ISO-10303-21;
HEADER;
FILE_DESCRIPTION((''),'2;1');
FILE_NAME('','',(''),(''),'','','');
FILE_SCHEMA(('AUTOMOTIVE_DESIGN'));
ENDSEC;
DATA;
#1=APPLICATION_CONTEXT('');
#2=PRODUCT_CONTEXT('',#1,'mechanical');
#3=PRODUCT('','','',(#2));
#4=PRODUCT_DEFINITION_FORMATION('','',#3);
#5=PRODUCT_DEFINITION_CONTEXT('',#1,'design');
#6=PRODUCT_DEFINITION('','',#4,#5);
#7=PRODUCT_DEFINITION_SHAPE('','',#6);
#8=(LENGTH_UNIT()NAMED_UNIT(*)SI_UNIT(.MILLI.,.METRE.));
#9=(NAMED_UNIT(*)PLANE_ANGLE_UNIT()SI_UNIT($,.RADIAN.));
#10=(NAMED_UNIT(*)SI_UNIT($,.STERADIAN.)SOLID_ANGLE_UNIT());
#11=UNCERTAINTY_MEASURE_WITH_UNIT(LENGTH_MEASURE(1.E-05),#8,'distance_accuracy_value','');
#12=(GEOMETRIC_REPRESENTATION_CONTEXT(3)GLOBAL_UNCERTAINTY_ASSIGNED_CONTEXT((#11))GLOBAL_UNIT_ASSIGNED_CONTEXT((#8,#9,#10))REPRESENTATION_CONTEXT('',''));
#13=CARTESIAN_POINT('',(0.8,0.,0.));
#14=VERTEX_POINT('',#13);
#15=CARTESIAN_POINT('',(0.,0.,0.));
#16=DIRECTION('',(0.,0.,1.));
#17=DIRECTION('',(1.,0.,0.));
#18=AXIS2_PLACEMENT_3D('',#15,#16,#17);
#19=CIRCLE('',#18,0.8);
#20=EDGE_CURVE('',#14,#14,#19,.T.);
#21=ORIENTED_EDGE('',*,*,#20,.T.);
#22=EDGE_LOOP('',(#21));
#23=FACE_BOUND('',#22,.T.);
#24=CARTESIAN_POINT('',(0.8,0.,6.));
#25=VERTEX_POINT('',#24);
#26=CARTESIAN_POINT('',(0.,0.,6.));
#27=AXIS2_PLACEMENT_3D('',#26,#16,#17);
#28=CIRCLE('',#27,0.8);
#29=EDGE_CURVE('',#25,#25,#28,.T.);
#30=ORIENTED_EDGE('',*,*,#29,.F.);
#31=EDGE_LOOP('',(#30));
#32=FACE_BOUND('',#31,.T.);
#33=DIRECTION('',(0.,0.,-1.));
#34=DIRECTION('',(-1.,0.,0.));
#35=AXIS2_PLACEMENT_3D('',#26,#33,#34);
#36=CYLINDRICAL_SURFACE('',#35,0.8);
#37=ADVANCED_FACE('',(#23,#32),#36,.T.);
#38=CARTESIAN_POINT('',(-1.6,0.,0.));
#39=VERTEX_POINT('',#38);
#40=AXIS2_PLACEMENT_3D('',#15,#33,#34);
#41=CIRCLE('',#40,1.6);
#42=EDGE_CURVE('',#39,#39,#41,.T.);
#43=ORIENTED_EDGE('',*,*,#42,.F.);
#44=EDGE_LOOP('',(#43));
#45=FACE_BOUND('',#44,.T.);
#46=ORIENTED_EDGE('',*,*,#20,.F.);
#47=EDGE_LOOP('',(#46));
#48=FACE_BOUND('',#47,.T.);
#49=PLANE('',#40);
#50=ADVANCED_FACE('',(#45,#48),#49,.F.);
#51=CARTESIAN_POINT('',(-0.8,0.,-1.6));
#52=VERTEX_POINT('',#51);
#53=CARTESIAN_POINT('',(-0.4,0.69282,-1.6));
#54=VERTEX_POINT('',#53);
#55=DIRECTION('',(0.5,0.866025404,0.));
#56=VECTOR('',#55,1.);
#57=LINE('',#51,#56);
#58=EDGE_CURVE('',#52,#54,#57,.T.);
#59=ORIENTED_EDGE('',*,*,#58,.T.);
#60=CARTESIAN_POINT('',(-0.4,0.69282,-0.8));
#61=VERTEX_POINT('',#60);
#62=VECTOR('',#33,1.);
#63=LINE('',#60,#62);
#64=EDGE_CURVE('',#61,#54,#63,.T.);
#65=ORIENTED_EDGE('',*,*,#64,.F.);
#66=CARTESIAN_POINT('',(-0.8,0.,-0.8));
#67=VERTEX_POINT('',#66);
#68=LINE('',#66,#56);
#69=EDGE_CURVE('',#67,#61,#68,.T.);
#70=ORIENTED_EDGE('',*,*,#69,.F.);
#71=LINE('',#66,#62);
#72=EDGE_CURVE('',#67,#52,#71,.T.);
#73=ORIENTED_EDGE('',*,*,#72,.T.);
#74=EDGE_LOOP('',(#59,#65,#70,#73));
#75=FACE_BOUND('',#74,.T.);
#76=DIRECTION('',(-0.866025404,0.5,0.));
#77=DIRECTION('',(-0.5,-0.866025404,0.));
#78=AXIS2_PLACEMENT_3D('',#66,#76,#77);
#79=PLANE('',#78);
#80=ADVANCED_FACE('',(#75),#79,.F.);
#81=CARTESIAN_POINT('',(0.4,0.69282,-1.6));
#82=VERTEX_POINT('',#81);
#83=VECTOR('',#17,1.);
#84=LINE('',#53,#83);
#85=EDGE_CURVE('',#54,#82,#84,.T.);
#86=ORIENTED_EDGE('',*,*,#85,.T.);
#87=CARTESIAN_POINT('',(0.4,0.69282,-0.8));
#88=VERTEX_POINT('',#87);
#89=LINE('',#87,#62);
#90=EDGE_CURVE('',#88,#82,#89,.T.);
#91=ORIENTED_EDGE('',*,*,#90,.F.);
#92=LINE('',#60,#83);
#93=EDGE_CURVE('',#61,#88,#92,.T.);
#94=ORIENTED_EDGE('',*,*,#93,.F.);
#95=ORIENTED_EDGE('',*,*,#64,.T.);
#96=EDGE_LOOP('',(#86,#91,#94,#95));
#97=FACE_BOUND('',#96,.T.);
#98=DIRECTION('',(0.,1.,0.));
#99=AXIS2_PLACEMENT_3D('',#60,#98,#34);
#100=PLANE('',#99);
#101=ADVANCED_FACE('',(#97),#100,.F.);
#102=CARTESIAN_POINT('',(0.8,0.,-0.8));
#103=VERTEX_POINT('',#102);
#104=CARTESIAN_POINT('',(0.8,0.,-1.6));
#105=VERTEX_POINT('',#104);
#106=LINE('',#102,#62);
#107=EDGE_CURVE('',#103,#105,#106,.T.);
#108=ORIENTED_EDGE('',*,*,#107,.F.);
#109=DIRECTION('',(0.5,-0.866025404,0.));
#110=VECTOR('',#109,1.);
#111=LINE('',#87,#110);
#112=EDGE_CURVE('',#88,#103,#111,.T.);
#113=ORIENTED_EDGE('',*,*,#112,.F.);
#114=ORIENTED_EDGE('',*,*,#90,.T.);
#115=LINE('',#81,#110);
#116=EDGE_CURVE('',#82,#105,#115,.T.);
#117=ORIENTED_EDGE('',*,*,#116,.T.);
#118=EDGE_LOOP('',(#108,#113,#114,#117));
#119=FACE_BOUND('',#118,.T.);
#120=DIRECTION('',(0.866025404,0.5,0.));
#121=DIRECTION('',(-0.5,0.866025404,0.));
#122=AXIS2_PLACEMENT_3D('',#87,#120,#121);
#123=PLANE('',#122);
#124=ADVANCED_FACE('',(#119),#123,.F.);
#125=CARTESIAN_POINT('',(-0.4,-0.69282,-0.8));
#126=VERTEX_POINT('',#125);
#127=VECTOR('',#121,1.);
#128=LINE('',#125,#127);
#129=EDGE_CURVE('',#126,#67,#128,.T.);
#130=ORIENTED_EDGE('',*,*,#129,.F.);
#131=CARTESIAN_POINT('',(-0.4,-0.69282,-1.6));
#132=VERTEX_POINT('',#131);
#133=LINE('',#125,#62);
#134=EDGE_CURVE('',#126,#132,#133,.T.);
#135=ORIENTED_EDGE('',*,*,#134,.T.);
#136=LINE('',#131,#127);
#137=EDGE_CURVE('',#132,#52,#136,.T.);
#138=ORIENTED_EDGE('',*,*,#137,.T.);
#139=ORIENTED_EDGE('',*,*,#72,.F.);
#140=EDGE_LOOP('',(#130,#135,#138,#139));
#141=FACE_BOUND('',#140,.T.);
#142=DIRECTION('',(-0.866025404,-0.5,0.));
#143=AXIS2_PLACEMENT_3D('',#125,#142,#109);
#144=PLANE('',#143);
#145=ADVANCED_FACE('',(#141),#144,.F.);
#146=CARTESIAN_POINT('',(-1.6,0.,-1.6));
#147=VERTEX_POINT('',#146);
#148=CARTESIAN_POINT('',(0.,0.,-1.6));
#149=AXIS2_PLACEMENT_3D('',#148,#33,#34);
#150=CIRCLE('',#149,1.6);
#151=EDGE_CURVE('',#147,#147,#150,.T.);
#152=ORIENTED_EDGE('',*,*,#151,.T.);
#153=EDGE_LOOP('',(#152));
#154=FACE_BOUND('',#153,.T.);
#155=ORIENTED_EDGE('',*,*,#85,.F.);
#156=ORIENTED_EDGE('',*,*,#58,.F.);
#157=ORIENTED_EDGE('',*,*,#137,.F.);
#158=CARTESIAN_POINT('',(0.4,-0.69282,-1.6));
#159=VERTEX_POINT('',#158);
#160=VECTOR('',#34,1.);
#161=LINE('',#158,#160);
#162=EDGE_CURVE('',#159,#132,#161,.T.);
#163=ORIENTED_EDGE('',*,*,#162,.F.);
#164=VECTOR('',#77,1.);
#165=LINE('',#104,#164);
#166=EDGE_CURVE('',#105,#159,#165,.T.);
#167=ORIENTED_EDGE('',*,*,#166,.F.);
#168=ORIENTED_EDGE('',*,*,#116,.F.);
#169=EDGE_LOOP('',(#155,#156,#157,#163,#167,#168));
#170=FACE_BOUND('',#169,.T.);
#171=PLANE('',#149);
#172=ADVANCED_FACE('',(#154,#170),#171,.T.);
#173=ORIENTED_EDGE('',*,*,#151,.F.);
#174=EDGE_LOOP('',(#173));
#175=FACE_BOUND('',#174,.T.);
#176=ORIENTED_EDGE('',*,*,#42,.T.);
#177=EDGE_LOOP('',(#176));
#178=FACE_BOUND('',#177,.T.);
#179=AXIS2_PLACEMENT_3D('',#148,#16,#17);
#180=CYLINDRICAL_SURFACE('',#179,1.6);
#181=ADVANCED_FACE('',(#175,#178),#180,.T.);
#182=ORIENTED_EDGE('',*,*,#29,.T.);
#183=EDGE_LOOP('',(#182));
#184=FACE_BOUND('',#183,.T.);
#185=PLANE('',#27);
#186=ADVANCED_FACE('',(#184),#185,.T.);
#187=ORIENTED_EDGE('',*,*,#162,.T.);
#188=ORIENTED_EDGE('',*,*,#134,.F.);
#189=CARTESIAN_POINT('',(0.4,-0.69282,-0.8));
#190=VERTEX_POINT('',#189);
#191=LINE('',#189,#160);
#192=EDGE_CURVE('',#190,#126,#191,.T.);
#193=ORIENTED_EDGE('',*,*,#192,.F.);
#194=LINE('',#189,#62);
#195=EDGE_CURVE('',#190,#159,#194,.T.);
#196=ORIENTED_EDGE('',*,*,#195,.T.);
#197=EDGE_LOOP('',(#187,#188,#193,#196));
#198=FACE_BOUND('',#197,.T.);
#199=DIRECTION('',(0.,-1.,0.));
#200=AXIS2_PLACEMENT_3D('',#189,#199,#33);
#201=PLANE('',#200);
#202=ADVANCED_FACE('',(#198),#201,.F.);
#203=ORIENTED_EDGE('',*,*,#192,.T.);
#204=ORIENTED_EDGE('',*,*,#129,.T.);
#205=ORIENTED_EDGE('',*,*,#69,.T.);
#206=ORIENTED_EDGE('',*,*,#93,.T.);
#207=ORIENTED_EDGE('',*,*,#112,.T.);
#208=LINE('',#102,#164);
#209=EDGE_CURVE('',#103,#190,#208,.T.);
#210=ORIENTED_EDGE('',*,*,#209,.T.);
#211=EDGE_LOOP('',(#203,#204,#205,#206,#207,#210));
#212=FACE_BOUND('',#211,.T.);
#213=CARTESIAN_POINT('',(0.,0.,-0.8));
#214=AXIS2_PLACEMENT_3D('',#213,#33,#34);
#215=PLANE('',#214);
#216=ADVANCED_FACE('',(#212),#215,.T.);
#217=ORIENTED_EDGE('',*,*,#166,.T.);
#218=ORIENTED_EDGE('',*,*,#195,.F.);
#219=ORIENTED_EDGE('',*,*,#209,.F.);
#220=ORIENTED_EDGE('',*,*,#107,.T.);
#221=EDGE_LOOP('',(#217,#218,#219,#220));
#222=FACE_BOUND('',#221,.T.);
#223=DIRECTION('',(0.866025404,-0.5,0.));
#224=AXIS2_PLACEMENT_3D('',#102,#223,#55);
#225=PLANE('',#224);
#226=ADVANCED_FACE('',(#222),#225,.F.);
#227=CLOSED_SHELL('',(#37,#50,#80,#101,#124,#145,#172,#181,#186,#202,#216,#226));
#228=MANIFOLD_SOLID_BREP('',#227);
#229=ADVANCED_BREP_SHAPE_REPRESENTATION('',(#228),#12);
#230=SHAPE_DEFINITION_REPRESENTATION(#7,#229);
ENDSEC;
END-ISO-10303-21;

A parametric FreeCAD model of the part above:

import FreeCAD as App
import Part
import Sketcher
Q = App.Units.Quantity

doc = App.newDocument("Part")
body = doc.addObject("PartDesign::Body", "Body")

# Sketch on XY plane
sketch1 = body.newObject("Sketcher::SketchObject", "Sketch")
sketch1.AttachmentSupport = (doc.getObject("XY_Plane"), [""])
sketch1.MapMode = "FlatFace"
sketch1.addGeometry(Part.Circle(App.Vector(0, 0, 0), App.Vector(0, 0, 1), 0.8), False)
sketch1.addConstraint(Sketcher.Constraint("Coincident", 0, 3, -1, 1))
sketch1.addConstraint(Sketcher.Constraint("Diameter", 0, Q("1.6 mm")))
pad1 = body.newObject("PartDesign::Pad", "Pad")
pad1.Profile = sketch1
pad1.Length = 6

# Sketch on XY plane
sketch2 = body.newObject("Sketcher::SketchObject", "Sketch001")
sketch2.AttachmentSupport = (doc.getObject("XY_Plane"), [""])
sketch2.MapMode = "FlatFace"
sketch2.addGeometry(Part.Circle(App.Vector(0, 0, 0), App.Vector(0, 0, 1), 1.6), False)
sketch2.addConstraint(Sketcher.Constraint("Coincident", 0, 3, -1, 1))
sketch2.addConstraint(Sketcher.Constraint("Diameter", 0, Q("3.2 mm")))
pad2 = body.newObject("PartDesign::Pad", "Pad001")
pad2.Profile = sketch2
pad2.Length = 1.6
pad2.Reversed = True

# Sketch on XY plane
sketch3 = body.newObject("Sketcher::SketchObject", "Sketch002")
sketch3.AttachmentSupport = (doc.getObject("XY_Plane"), [""])
sketch3.MapMode = "FlatFace"
sketch3.AttachmentOffset = App.Placement(App.Vector(0, 0, -1.6), App.Rotation())
sketch3.addGeometry(Part.LineSegment(App.Vector(-0.8, 0, 0), App.Vector(-0.4, 0.7, 0)), False)
sketch3.addGeometry(Part.LineSegment(App.Vector(-0.4, 0.7, 0), App.Vector(0.4, 0.7, 0)), False)
sketch3.addGeometry(Part.LineSegment(App.Vector(0.4, 0.7, 0), App.Vector(0.8, 0, 0)), False)
sketch3.addGeometry(Part.LineSegment(App.Vector(0.8, 0, 0), App.Vector(0.4, -0.7, 0)), False)
sketch3.addGeometry(Part.LineSegment(App.Vector(0.4, -0.7, 0), App.Vector(-0.4, -0.7, 0)), False)
sketch3.addGeometry(Part.LineSegment(App.Vector(-0.4, -0.7, 0), App.Vector(-0.8, 0, 0)), False)
sketch3.addConstraint(Sketcher.Constraint("Coincident", 0, 2, 1, 1))
sketch3.addConstraint(Sketcher.Constraint("Coincident", 1, 2, 2, 1))
sketch3.addConstraint(Sketcher.Constraint("Coincident", 2, 2, 3, 1))
sketch3.addConstraint(Sketcher.Constraint("Coincident", 3, 2, 4, 1))
sketch3.addConstraint(Sketcher.Constraint("Coincident", 4, 2, 5, 1))
sketch3.addConstraint(Sketcher.Constraint("Coincident", 5, 2, 0, 1))
sketch3.addConstraint(Sketcher.Constraint("Horizontal", 1))
sketch3.addConstraint(Sketcher.Constraint("Horizontal", 4))
sketch3.addConstraint(Sketcher.Constraint("Symmetric", 0, 2, 3, 2, -1, 1))
sketch3.addConstraint(Sketcher.Constraint("Symmetric", 2, 2, 5, 2, -1, 1))
sketch3.addConstraint(Sketcher.Constraint("PointOnObject", 2, 2, -1))
sketch3.addConstraint(Sketcher.Constraint("Parallel", 2, 5))
sketch3.addConstraint(Sketcher.Constraint("Vertical", 1, 2, 3, 2))
sketch3.addConstraint(Sketcher.Constraint("Angle", 0, Q("60 deg")))
sketch3.addConstraint(Sketcher.Constraint("DistanceX", 1, 1, 1, 2, Q("0.8 mm")))
sketch3.addConstraint(Sketcher.Constraint("Distance", 0, Q("0.8 mm")))
pocket1 = body.newObject("PartDesign::Pocket", "Pocket")
pocket1.Profile = sketch3
pocket1.Length = 0.8
pocket1.Reversed = True

doc.recompute()
